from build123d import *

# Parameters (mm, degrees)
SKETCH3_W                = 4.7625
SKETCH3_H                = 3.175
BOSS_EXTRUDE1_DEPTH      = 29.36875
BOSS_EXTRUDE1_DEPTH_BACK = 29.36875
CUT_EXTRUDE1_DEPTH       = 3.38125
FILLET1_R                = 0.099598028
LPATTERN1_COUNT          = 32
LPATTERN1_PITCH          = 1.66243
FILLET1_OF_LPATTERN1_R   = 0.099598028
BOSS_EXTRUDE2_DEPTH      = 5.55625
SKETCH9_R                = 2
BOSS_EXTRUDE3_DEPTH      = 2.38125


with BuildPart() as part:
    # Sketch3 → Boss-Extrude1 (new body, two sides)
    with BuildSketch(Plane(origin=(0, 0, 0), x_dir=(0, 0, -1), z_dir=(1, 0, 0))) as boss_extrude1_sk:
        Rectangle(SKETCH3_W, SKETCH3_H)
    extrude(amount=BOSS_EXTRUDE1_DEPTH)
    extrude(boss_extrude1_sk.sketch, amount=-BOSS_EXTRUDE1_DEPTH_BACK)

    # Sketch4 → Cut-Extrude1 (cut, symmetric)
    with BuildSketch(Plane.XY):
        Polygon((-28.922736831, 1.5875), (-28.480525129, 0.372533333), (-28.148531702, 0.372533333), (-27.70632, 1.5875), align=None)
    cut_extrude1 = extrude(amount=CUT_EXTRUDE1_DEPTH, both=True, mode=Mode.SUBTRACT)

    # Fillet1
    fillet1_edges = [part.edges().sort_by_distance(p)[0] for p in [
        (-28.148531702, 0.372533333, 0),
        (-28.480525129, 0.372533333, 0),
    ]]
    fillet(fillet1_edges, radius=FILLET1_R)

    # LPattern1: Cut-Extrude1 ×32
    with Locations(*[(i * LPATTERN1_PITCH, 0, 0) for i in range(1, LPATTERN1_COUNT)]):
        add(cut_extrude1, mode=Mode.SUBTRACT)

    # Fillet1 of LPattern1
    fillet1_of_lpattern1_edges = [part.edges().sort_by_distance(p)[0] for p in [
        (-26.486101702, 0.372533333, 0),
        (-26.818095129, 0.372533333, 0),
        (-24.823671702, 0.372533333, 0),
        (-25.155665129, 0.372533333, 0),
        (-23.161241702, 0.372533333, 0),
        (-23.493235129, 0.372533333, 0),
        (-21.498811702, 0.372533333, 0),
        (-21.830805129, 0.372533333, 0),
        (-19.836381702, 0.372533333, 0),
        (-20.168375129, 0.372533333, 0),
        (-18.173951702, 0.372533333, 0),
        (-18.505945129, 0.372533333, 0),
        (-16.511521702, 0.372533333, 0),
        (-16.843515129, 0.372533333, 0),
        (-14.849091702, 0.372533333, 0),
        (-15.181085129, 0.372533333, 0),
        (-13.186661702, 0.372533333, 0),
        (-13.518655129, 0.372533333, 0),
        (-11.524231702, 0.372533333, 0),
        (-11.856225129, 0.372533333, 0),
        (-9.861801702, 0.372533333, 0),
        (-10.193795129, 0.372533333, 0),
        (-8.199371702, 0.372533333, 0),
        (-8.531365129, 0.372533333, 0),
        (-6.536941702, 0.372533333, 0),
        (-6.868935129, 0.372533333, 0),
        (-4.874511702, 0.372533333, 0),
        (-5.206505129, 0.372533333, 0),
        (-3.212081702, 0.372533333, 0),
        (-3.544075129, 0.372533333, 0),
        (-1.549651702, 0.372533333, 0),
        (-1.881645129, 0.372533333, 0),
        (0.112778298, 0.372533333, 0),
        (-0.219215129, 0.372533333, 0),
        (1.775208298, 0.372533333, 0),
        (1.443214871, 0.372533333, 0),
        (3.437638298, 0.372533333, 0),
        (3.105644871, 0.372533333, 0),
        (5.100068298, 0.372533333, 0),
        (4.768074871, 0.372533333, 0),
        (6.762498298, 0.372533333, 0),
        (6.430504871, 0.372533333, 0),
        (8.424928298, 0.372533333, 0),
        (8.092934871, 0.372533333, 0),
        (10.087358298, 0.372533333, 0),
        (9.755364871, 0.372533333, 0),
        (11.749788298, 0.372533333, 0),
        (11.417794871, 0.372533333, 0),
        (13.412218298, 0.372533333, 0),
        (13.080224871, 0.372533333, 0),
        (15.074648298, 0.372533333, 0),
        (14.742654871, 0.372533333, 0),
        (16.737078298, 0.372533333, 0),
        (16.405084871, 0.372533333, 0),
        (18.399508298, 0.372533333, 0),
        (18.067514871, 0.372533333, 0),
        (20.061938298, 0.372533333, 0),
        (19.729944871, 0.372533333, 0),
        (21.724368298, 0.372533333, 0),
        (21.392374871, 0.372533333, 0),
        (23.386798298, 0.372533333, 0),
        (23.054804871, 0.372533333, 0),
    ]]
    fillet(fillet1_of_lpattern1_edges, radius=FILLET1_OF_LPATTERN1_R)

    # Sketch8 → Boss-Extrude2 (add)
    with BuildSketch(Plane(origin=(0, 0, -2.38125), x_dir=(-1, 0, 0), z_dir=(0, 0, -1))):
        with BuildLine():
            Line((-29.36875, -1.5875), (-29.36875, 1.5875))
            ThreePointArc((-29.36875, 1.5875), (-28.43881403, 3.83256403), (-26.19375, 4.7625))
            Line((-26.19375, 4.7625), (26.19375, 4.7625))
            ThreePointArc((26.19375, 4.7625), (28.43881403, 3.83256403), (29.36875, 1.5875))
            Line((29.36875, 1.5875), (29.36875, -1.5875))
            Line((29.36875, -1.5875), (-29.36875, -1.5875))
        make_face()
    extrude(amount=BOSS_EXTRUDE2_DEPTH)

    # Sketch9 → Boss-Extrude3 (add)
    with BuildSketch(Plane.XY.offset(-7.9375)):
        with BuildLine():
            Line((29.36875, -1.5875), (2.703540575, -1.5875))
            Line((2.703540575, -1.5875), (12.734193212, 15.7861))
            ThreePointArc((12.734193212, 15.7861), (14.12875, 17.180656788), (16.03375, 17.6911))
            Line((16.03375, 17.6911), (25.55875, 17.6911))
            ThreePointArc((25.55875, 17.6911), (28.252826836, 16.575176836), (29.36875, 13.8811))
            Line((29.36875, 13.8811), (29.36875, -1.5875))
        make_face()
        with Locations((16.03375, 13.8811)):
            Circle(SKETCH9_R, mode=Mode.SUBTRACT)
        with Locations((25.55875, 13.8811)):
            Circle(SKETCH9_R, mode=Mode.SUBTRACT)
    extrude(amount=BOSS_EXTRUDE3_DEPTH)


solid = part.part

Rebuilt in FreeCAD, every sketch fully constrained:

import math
import FreeCAD as App
import Part
import Sketcher
Q = App.Units.Quantity


def edges_at(feature, points):
    """Names of the edges that pass closest to the given points."""
    edges = feature.Shape.Edges
    near = lambda p: min(range(len(edges)), key=lambda i: edges[i].distToShape(Part.Vertex(*p))[0])
    return sorted({f"Edge{near(p) + 1}" for p in points})


def add_polygon(sketch, points):
    """Adds a closed chain of lines whose ends are joined by coincident constraints."""
    first, n = sketch.GeometryCount, len(points)
    for a, b in zip(points, points[1:] + points[:1]):
        sketch.addGeometry(Part.LineSegment(App.Vector(*a, 0), App.Vector(*b, 0)), False)
    for i in range(n):
        sketch.addConstraint(Sketcher.Constraint("Coincident", first + i, 2, first + (i + 1) % n, 1))

doc = App.newDocument("Part")
body = doc.addObject("PartDesign::Body", "Body")

# Sketch on YZ plane
sketch1 = body.newObject("Sketcher::SketchObject", "Sketch")
sketch1.AttachmentSupport = (doc.getObject("YZ_Plane"), [""])
sketch1.MapMode = "FlatFace"
add_polygon(sketch1, [(1.6, 2.4), (-1.6, 2.4), (-1.6, -2.4), (1.6, -2.4)])  # lines 0-3
sketch1.addConstraint([
    Sketcher.Constraint("Horizontal", 0),
    Sketcher.Constraint("Vertical", 1),
    Sketcher.Constraint("Horizontal", 2),
    Sketcher.Constraint("Vertical", 3),
    Sketcher.Constraint("Symmetric", 0, 2, 2, 2, -1, 1),
    Sketcher.Constraint("DistanceX", 0, 2, 0, 1, Q("0.125 in")),
    Sketcher.Constraint("DistanceY", 1, 2, 1, 1, Q("0.1875 in")),
])
pad1 = body.newObject("PartDesign::Pad", "Pad")
pad1.Profile = sketch1
pad1.Type = "TwoLengths"
pad1.Length = Q("1.15625 in")
pad1.Length2 = Q("1.15625 in")

# Sketch on XY plane
sketch2 = body.newObject("Sketcher::SketchObject", "Sketch001")
sketch2.AttachmentSupport = (doc.getObject("XY_Plane"), [""])
sketch2.MapMode = "FlatFace"
add_polygon(sketch2, [(-28.92, 1.59), (-28.48, 0.37), (-28.15, 0.37), (-27.71, 1.59)])  # lines 0-3
sketch2.addConstraint([
    Sketcher.Constraint("Horizontal", 1),
    Sketcher.Constraint("Horizontal", 3),
    Sketcher.Constraint("Equal", 0, 2),
    Sketcher.Constraint("Angle", 0, Q("-70 deg")),
    Sketcher.Constraint("DistanceY", -1, 1, 2, 2, Q("0.0625 in")),
    Sketcher.Constraint("DistanceX", 2, 2, -1, 1, Q("1.0908 in")),
    Sketcher.Constraint("Distance", 0, 1.292941),
    Sketcher.Constraint("DistanceX", 1, 1, 1, 2, 0.331993),
])
pocket1 = body.newObject("PartDesign::Pocket", "Pocket")
pocket1.Profile = sketch2
pocket1.Length = 6.7625
pocket1.Midplane = True
doc.recompute()

fillet = body.newObject("PartDesign::Fillet", "Fillet")
fillet.Base = (pocket1, edges_at(pocket1, [(-28.149, 0.373, 0), (-28.481, 0.373, 0)]))
fillet.Radius = 0.099598
doc.recompute()

linearpattern = body.newObject("PartDesign::LinearPattern", "LinearPattern")
linearpattern.Originals = [pocket1]
linearpattern.Direction = (doc.getObject("X_Axis"), [""])
linearpattern.Mode = "offset"
linearpattern.Offset = 1.66243
linearpattern.Occurrences = 32
body.Tip = linearpattern
doc.recompute()

fillet2 = body.newObject("PartDesign::Fillet", "Fillet001")
fillet2.Base = (linearpattern, edges_at(linearpattern, [
    (-26.486, 0.373, 0),
    (-26.818, 0.373, 0),
    (-24.824, 0.373, 0),
    (-25.156, 0.373, 0),
    (-23.161, 0.373, 0),
    (-23.493, 0.373, 0),
    (-21.499, 0.373, 0),
    (-21.831, 0.373, 0),
    (-19.836, 0.373, 0),
    (-20.168, 0.373, 0),
    (-18.174, 0.373, 0),
    (-18.506, 0.373, 0),
    (-16.512, 0.373, 0),
    (-16.844, 0.373, 0),
    (-14.849, 0.373, 0),
    (-15.181, 0.373, 0),
    (-13.187, 0.373, 0),
    (-13.519, 0.373, 0),
    (-11.524, 0.373, 0),
    (-11.856, 0.373, 0),
    (-9.862, 0.373, 0),
    (-10.194, 0.373, 0),
    (-8.199, 0.373, 0),
    (-8.531, 0.373, 0),
    (-6.537, 0.373, 0),
    (-6.869, 0.373, 0),
    (-4.875, 0.373, 0),
    (-5.207, 0.373, 0),
    (-3.212, 0.373, 0),
    (-3.544, 0.373, 0),
    (-1.55, 0.373, 0),
    (-1.882, 0.373, 0),
    (0.113, 0.373, 0),
    (-0.219, 0.373, 0),
    (1.775, 0.373, 0),
    (1.443, 0.373, 0),
    (3.438, 0.373, 0),
    (3.106, 0.373, 0),
    (5.1, 0.373, 0),
    (4.768, 0.373, 0),
    (6.762, 0.373, 0),
    (6.431, 0.373, 0),
    (8.425, 0.373, 0),
    (8.093, 0.373, 0),
    (10.087, 0.373, 0),
    (9.755, 0.373, 0),
    (11.75, 0.373, 0),
    (11.418, 0.373, 0),
    (13.412, 0.373, 0),
    (13.08, 0.373, 0),
    (15.075, 0.373, 0),
    (14.743, 0.373, 0),
    (16.737, 0.373, 0),
    (16.405, 0.373, 0),
    (18.4, 0.373, 0),
    (18.068, 0.373, 0),
    (20.062, 0.373, 0),
    (19.73, 0.373, 0),
    (21.724, 0.373, 0),
    (21.392, 0.373, 0),
    (23.387, 0.373, 0),
    (23.055, 0.373, 0),
]))
fillet2.Radius = 0.099598

# Sketch on XY plane
sketch3 = body.newObject("Sketcher::SketchObject", "Sketch002")
sketch3.AttachmentSupport = (doc.getObject("XY_Plane"), [""])
sketch3.MapMode = "FlatFace"
sketch3.AttachmentOffset = App.Placement(App.Vector(0, 0, -0.09375 * 25.4), App.Rotation())
sketch3.addGeometry([
    Part.LineSegment(App.Vector(29.4, 1.6, 0), App.Vector(29.4, -1.6, 0)),  # 0
    Part.LineSegment(App.Vector(29.4, -1.6, 0), App.Vector(-29.4, -1.6, 0)),  # 1
    Part.LineSegment(App.Vector(-29.4, -1.6, 0), App.Vector(-29.4, 1.6, 0)),  # 2
    Part.ArcOfCircle(Part.Circle(App.Vector(-26.2, 1.6, 0), App.Vector(0, 0, 1), 3.2), math.radians(90), math.radians(180)),  # 3
    Part.LineSegment(App.Vector(-26.2, 4.8, 0), App.Vector(26.2, 4.8, 0)),  # 4
    Part.ArcOfCircle(Part.Circle(App.Vector(26.2, 1.6, 0), App.Vector(0, 0, 1), 3.2), math.radians(0), math.radians(90)),  # 5
], False)
sketch3.addConstraint([
    Sketcher.Constraint("Coincident", 0, 2, 1, 1),
    Sketcher.Constraint("Coincident", 1, 2, 2, 1),
    Sketcher.Constraint("Tangent", 2, 2, 3, 2),
    Sketcher.Constraint("Tangent", 3, 1, 4, 1),
    Sketcher.Constraint("Tangent", 4, 2, 5, 2),
    Sketcher.Constraint("Tangent", 5, 1, 0, 1),
    Sketcher.Constraint("Vertical", 0),
    Sketcher.Constraint("Horizontal", 1),
    Sketcher.Constraint("Vertical", 2),
    Sketcher.Constraint("Horizontal", 4),
    Sketcher.Constraint("Equal", 3, 5),
    Sketcher.Constraint("Symmetric", 0, 2, 2, 2, -1, 1),
    Sketcher.Constraint("Radius", 3, Q("0.125 in")),
    Sketcher.Constraint("DistanceX", 1, 2, 1, 1, Q("2.3125 in")),
    Sketcher.Constraint("DistanceY", 0, 2, 0, 1, Q("0.125 in")),
])
pad2 = body.newObject("PartDesign::Pad", "Pad001")
pad2.Profile = sketch3
pad2.Length = Q("0.21875 in")
pad2.Reversed = True

# Sketch on XY plane
sketch4 = body.newObject("Sketcher::SketchObject", "Sketch003")
sketch4.AttachmentSupport = (doc.getObject("XY_Plane"), [""])
sketch4.MapMode = "FlatFace"
sketch4.AttachmentOffset = App.Placement(App.Vector(0, 0, -0.3125 * 25.4), App.Rotation())
sketch4.addGeometry([
    Part.LineSegment(App.Vector(2.7, -1.6, 0), App.Vector(29.4, -1.6, 0)),  # 0
    Part.LineSegment(App.Vector(29.4, -1.6, 0), App.Vector(29.4, 13.9, 0)),  # 1
    Part.ArcOfCircle(Part.Circle(App.Vector(25.6, 13.9, 0), App.Vector(0, 0, 1), 3.8), math.radians(0), math.radians(90)),  # 2
    Part.LineSegment(App.Vector(25.6, 17.7, 0), App.Vector(16, 17.7, 0)),  # 3
    Part.ArcOfCircle(Part.Circle(App.Vector(16, 13.9, 0), App.Vector(0, 0, 1), 3.8), math.radians(90), math.radians(150)),  # 4
    Part.LineSegment(App.Vector(12.7, 15.8, 0), App.Vector(2.7, -1.6, 0)),  # 5
    Part.Circle(App.Vector(25.6, 13.9, 0), App.Vector(0, 0, 1), 2),  # 6
    Part.Circle(App.Vector(16, 13.9, 0), App.Vector(0, 0, 1), 2),  # 7
], False)
sketch4.addConstraint([
    Sketcher.Constraint("Coincident", 0, 2, 1, 1),
    Sketcher.Constraint("Tangent", 1, 2, 2, 1),
    Sketcher.Constraint("Tangent", 2, 2, 3, 1),
    Sketcher.Constraint("Tangent", 3, 2, 4, 1),
    Sketcher.Constraint("Tangent", 4, 2, 5, 1),
    Sketcher.Constraint("Coincident", 5, 2, 0, 1),
    Sketcher.Constraint("Horizontal", 0),
    Sketcher.Constraint("Vertical", 1),
    Sketcher.Constraint("Horizontal", 3),
    Sketcher.Constraint("Coincident", 6, 3, 2, 3),
    Sketcher.Constraint("Coincident", 7, 3, 4, 3),
    Sketcher.Constraint("Equal", 2, 4),
    Sketcher.Constraint("Equal", 6, 7),
    Sketcher.Constraint("Radius", 2, Q("0.15 in")),
    Sketcher.Constraint("Angle", 5, Q("-120 deg")),
    Sketcher.Constraint("Diameter", 6, 4.0),
    Sketcher.Constraint("DistanceX", 3, 2, 3, 1, Q("0.375 in")),
    Sketcher.Constraint("DistanceY", 1, 1, 1, 2, Q("0.609 in")),
    Sketcher.Constraint("DistanceX", -1, 1, 0, 2, Q("1.15625 in")),
    Sketcher.Constraint("DistanceY", 0, 2, -1, 1, Q("0.0625 in")),
])
pad3 = body.newObject("PartDesign::Pad", "Pad002")
pad3.Profile = sketch4
pad3.Length = Q("0.09375 in")

doc.recompute()
